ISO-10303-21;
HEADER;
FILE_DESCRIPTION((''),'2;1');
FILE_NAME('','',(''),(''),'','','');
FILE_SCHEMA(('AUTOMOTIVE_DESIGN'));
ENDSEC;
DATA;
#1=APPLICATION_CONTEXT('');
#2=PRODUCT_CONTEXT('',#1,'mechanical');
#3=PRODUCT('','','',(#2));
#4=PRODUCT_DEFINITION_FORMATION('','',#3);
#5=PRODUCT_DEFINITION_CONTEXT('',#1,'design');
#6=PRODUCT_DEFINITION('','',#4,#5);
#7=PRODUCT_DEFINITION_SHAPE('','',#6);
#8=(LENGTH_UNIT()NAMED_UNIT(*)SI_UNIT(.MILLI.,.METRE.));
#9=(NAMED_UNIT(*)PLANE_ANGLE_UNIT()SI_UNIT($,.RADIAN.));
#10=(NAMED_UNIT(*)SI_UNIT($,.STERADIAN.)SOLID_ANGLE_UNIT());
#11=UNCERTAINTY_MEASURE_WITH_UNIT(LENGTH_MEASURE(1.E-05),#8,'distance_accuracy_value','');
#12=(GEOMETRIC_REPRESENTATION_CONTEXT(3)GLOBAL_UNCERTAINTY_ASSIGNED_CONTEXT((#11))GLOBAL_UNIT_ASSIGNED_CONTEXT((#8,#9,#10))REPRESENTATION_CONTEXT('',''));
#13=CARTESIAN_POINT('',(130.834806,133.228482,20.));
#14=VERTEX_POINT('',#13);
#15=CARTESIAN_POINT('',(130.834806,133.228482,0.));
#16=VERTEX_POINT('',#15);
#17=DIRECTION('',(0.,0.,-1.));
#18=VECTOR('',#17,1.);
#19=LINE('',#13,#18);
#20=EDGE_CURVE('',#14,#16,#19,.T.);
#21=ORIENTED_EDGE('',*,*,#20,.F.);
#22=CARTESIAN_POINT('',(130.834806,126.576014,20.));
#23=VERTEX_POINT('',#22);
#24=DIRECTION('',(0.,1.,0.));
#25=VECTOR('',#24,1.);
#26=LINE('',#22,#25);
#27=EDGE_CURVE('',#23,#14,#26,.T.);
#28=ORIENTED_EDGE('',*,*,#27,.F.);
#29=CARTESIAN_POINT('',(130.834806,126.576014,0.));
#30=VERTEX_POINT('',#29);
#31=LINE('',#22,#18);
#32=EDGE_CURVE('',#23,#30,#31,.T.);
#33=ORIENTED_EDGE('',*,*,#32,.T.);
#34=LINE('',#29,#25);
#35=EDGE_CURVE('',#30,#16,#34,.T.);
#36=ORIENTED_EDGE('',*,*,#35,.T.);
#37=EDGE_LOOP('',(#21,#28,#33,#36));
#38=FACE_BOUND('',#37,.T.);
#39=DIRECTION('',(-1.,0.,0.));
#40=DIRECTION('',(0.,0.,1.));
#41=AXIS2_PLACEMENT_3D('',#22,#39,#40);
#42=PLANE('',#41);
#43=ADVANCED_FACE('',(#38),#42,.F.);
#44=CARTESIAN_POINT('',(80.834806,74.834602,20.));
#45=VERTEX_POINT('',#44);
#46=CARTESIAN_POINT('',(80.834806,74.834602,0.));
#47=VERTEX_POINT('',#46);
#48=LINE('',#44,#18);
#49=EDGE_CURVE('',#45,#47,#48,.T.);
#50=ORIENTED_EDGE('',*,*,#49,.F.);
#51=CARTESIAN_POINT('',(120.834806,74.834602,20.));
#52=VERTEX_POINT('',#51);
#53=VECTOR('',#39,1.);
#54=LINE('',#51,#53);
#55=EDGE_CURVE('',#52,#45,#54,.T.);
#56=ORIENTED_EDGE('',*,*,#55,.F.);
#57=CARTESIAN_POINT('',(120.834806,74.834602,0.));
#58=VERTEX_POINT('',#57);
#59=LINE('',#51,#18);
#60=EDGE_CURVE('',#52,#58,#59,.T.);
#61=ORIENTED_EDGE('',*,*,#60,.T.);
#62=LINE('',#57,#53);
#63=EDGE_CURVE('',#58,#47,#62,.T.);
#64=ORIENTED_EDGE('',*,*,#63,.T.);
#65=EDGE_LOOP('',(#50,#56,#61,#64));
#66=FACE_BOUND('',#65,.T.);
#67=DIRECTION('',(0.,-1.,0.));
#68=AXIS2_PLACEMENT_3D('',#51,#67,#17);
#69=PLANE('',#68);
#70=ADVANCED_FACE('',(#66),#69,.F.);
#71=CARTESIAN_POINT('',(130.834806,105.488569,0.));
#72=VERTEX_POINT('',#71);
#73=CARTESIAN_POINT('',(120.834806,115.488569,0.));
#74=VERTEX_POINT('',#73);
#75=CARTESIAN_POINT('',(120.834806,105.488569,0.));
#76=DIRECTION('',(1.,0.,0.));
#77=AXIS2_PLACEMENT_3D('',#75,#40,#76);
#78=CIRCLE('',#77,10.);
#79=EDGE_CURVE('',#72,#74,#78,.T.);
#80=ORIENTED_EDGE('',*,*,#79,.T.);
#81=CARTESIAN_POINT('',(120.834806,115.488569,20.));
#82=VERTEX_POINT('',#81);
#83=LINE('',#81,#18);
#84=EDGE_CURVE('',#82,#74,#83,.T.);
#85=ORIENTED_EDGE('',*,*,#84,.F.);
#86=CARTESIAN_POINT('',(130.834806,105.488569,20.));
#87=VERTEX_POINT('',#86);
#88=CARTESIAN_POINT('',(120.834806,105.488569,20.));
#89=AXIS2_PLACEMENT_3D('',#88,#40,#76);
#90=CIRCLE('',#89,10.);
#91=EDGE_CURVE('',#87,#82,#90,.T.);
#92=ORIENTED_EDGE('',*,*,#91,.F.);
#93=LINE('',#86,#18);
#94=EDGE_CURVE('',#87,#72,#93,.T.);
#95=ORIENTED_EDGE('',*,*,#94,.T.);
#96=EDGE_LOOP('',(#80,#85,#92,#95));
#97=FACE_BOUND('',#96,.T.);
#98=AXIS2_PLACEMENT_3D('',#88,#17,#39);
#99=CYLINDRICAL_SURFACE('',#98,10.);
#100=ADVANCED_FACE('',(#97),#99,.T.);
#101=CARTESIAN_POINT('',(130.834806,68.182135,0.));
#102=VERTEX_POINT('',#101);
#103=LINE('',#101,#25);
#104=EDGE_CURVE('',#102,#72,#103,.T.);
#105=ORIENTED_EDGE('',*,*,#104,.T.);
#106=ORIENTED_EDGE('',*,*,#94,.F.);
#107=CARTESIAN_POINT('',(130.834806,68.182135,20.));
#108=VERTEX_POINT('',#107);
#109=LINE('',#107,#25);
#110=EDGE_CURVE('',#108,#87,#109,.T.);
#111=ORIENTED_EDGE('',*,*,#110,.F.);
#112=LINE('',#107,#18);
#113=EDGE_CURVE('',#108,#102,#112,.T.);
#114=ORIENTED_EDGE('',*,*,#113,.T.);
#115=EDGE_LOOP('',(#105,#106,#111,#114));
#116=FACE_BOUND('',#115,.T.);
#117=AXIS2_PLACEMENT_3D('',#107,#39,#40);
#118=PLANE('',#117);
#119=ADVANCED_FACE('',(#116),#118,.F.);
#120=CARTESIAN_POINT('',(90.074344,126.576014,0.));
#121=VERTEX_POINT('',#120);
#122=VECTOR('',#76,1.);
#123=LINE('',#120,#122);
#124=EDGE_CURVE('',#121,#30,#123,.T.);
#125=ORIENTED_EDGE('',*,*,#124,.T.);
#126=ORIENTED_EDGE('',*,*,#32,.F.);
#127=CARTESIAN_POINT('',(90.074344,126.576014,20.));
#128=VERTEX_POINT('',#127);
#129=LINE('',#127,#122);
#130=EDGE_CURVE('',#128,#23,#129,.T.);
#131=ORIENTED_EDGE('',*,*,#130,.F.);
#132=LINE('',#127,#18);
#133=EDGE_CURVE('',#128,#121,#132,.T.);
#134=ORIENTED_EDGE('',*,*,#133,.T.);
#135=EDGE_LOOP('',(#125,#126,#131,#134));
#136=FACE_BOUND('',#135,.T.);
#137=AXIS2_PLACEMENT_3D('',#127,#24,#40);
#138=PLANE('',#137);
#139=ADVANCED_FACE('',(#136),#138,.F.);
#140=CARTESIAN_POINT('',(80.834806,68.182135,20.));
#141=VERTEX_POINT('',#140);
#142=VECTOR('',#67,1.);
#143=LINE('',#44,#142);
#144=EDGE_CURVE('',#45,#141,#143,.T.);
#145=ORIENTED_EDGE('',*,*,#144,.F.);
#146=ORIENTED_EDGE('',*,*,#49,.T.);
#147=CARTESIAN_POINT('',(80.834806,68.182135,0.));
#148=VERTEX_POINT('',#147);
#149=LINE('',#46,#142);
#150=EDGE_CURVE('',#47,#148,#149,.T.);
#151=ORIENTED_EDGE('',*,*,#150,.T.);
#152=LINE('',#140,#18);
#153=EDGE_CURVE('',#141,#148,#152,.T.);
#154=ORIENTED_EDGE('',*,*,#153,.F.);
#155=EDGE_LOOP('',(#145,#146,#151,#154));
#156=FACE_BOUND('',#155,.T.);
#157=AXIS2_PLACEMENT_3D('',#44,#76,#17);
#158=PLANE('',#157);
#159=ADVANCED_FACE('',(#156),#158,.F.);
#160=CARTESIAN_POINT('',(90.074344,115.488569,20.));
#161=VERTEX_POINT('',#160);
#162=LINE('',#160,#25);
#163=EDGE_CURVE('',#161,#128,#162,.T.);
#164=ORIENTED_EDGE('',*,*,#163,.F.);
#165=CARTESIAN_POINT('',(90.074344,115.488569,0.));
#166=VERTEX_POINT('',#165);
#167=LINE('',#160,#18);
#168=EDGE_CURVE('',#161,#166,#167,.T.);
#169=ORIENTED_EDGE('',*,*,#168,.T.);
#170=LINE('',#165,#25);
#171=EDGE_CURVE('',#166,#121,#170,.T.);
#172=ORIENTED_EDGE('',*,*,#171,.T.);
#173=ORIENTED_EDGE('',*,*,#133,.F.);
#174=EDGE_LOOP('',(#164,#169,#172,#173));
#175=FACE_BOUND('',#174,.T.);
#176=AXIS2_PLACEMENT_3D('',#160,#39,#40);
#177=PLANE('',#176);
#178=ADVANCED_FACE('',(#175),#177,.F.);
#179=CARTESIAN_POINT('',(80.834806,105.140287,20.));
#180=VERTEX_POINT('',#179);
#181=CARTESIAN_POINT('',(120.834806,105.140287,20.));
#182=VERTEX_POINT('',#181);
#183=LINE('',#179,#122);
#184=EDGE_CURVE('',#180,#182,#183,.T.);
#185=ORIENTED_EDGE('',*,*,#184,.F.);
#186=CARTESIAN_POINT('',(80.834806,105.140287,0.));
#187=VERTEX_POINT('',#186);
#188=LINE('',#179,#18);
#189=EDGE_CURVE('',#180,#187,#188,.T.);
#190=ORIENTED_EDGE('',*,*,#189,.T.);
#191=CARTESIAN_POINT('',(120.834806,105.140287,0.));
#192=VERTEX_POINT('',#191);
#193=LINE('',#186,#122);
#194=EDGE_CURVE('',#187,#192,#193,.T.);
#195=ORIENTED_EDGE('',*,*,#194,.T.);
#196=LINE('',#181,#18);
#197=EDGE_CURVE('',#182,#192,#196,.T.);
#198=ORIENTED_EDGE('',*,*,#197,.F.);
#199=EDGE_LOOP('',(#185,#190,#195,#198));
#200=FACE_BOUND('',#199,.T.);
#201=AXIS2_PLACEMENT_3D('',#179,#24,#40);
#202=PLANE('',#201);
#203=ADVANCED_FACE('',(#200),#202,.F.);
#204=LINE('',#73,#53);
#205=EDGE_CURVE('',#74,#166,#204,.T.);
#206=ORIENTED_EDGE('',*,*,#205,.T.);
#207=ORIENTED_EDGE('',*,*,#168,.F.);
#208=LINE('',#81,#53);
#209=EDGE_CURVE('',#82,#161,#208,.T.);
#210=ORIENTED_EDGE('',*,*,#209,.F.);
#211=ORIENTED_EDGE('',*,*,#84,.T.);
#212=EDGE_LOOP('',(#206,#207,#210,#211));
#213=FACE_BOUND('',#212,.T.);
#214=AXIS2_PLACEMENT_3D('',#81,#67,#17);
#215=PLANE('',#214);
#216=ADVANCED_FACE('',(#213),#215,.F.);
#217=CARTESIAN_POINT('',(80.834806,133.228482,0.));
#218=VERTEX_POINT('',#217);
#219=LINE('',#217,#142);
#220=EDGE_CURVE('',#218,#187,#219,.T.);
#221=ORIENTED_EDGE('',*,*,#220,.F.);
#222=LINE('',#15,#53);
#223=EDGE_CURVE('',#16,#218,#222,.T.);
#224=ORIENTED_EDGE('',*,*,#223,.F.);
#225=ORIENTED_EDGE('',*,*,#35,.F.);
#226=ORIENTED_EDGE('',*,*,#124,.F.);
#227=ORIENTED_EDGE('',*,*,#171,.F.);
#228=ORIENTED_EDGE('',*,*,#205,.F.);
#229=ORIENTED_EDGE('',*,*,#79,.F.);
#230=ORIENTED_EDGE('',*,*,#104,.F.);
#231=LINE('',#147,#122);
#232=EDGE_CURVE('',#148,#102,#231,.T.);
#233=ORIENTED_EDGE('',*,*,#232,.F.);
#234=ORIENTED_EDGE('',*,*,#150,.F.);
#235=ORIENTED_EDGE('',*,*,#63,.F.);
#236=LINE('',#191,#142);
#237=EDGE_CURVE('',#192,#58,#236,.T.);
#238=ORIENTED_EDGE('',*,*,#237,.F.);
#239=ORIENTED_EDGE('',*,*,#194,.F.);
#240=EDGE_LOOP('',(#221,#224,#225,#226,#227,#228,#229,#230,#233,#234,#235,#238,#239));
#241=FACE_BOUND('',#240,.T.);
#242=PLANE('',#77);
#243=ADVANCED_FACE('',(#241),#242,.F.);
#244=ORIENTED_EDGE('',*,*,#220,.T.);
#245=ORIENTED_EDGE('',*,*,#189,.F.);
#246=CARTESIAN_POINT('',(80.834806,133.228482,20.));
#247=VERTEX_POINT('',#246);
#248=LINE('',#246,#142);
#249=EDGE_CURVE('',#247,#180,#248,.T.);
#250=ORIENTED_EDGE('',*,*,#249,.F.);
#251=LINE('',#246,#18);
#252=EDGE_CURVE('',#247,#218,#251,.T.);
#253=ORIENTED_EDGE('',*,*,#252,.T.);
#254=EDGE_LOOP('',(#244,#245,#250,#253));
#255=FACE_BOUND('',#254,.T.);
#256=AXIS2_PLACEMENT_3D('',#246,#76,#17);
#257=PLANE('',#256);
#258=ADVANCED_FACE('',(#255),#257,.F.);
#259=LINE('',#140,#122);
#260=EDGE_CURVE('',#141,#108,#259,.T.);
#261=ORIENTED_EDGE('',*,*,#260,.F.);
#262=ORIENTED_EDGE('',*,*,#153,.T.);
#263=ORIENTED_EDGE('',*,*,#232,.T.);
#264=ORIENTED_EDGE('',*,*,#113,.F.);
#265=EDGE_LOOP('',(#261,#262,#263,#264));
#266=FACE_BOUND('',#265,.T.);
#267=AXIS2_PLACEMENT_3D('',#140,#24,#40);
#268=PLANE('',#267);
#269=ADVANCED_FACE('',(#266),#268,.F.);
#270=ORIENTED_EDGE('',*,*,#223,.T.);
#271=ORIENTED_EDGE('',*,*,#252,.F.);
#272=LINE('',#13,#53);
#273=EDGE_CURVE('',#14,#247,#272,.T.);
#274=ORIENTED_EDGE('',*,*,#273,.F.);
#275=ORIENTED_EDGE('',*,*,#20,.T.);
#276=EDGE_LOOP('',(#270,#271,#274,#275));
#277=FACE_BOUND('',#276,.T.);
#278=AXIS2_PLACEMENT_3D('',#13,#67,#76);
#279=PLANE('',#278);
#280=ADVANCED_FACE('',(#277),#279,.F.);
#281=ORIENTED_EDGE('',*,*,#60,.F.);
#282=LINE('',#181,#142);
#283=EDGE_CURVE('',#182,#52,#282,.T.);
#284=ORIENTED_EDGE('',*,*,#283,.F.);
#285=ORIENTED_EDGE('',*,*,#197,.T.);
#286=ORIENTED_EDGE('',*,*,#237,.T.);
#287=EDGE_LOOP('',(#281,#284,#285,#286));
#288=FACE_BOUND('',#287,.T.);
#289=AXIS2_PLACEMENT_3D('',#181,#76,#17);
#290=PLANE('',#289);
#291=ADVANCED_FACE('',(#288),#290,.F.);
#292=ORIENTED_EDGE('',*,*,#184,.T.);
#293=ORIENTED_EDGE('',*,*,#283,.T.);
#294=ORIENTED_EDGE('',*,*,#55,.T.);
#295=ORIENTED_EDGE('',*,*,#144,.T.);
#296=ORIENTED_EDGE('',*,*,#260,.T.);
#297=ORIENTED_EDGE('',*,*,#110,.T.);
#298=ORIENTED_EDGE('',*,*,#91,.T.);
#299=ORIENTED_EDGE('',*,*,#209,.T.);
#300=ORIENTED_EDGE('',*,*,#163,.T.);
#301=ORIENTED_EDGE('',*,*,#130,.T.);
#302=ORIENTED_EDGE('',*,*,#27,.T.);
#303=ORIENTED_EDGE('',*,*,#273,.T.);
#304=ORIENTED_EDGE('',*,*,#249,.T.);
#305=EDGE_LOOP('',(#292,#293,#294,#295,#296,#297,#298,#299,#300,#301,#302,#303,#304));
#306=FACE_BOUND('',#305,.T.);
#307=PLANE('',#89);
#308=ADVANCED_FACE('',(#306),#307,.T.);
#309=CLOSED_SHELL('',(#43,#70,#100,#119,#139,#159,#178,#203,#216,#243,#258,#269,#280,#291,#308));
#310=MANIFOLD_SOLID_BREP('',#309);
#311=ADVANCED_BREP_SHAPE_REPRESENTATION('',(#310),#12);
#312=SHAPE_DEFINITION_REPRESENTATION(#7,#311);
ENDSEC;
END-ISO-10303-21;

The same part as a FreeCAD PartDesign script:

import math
import FreeCAD as App
import Part
import Sketcher
Q = App.Units.Quantity

doc = App.newDocument("Part")
body = doc.addObject("PartDesign::Body", "Body")

# Sketch on XY plane
sketch1 = doc.addObject("Sketcher::SketchObject", "Sketch")
body.addObject(sketch1)
sketch1.AttachmentSupport = (doc.XY_Plane, [""])
sketch1.MapMode = "FlatFace"
sketch1.addGeometry([
    Part.LineSegment(App.Vector(131, 133, 0), App.Vector(81, 133, 0)),  # 0
    Part.LineSegment(App.Vector(81, 133, 0), App.Vector(81, 105, 0)),  # 1
    Part.LineSegment(App.Vector(81, 105, 0), App.Vector(121, 105, 0)),  # 2
    Part.LineSegment(App.Vector(121, 105, 0), App.Vector(121, 75, 0)),  # 3
    Part.LineSegment(App.Vector(121, 75, 0), App.Vector(81, 75, 0)),  # 4
    Part.LineSegment(App.Vector(81, 75, 0), App.Vector(81, 68, 0)),  # 5
    Part.LineSegment(App.Vector(81, 68, 0), App.Vector(131, 68, 0)),  # 6
    Part.LineSegment(App.Vector(131, 68, 0), App.Vector(131, 105, 0)),  # 7
    Part.ArcOfCircle(Part.Circle(App.Vector(121, 105, 0), App.Vector(0, 0, 1), 10), math.radians(0), math.radians(90)),  # 8
    Part.LineSegment(App.Vector(121, 115, 0), App.Vector(90, 115, 0)),  # 9
    Part.LineSegment(App.Vector(90, 115, 0), App.Vector(90, 127, 0)),  # 10
    Part.LineSegment(App.Vector(90, 127, 0), App.Vector(131, 127, 0)),  # 11
    Part.LineSegment(App.Vector(131, 127, 0), App.Vector(131, 133, 0)),  # 12
], False)
sketch1.addConstraint([
    Sketcher.Constraint("Coincident", 0, 2, 1, 1),
    Sketcher.Constraint("Coincident", 1, 2, 2, 1),
    Sketcher.Constraint("Coincident", 2, 2, 3, 1),
    Sketcher.Constraint("Coincident", 3, 2, 4, 1),
    Sketcher.Constraint("Coincident", 4, 2, 5, 1),
    Sketcher.Constraint("Coincident", 5, 2, 6, 1),
    Sketcher.Constraint("Coincident", 6, 2, 7, 1),
    Sketcher.Constraint("Tangent", 7, 2, 8, 1),
    Sketcher.Constraint("Tangent", 8, 2, 9, 1),
    Sketcher.Constraint("Coincident", 9, 2, 10, 1),
    Sketcher.Constraint("Coincident", 10, 2, 11, 1),
    Sketcher.Constraint("Coincident", 11, 2, 12, 1),
    Sketcher.Constraint("Coincident", 12, 2, 0, 1),
    Sketcher.Constraint("Horizontal", 0),
    Sketcher.Constraint("Vertical", 1),
    Sketcher.Constraint("Horizontal", 2),
    Sketcher.Constraint("Vertical", 3),
    Sketcher.Constraint("Horizontal", 4),
    Sketcher.Constraint("Vertical", 5),
    Sketcher.Constraint("Horizontal", 6),
    Sketcher.Constraint("Vertical", 7),
    Sketcher.Constraint("Horizontal", 9),
    Sketcher.Constraint("Vertical", 10),
    Sketcher.Constraint("Horizontal", 11),
    Sketcher.Constraint("Vertical", 12),
    Sketcher.Constraint("Vertical", 8, 3, 2, 2),
    Sketcher.Constraint("Vertical", 1, 2, 4, 2),
    Sketcher.Constraint("Vertical", 7, 2, 11, 2),
    Sketcher.Constraint("Equal", 5, 12),
    Sketcher.Constraint("Radius", 8, Q("10 mm")),
    Sketcher.Constraint("DistanceX", 0, 2, 0, 1, Q("50 mm")),
    Sketcher.Constraint("DistanceX", 9, 2, 9, 1, Q("30.760462 mm")),
    Sketcher.Constraint("DistanceY", 1, 2, 1, 1, Q("28.088195 mm")),
    Sketcher.Constraint("DistanceY", 3, 2, 3, 1, Q("30.305684 mm")),
    Sketcher.Constraint("DistanceY", 5, 2, 5, 1, Q("6.652467 mm")),
    Sketcher.Constraint("DistanceY", 7, 1, 7, 2, Q("37.306434 mm")),
    Sketcher.Constraint("DistanceY", -1, 1, 8, 3, Q("105.488569 mm")),
    Sketcher.Constraint("DistanceX", -1, 1, 8, 3, Q("120.834806 mm")),
])
pad1 = doc.addObject("PartDesign::Pad", "Pad")
body.addObject(pad1)
pad1.Profile = sketch1
pad1.Length = 20

doc.recompute()
